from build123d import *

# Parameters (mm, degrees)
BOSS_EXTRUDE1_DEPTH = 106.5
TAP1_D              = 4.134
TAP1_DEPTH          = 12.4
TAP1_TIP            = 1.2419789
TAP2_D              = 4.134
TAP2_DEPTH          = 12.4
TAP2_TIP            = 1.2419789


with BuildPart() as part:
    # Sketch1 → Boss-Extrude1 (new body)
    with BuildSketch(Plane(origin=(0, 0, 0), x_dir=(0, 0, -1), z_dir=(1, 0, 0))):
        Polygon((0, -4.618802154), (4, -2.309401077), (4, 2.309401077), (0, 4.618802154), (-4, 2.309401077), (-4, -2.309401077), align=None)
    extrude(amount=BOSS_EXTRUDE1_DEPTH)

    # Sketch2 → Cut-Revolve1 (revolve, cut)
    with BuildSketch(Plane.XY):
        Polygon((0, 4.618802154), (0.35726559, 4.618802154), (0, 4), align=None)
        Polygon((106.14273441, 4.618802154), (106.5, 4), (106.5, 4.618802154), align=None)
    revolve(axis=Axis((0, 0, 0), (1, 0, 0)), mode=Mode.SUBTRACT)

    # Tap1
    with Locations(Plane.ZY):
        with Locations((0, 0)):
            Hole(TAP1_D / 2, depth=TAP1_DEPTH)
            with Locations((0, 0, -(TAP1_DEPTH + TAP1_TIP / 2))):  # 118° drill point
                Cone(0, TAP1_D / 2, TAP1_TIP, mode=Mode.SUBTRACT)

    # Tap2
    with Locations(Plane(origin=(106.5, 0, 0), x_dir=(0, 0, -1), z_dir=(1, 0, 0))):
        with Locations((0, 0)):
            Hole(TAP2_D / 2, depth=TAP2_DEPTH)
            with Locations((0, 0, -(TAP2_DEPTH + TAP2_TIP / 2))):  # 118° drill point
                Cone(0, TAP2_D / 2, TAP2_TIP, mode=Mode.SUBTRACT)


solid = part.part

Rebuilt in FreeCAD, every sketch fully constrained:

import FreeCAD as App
import Part
import Sketcher
from FreeCAD import Vector
Q = App.Units.Quantity

doc = App.newDocument("Part")
params = doc.addObject("Spreadsheet::Sheet", "Params")
for row, (alias, value) in enumerate([
    ("pad1_length", "106.5 mm"),
    ("groove_angle", "360 deg"),
    ("hole_diameter", "4.134 mm"),
    ("hole_depth", "12.4 mm"),
    ("hole2_diameter", "4.134 mm"),
    ("hole2_depth", "12.4 mm"),
], start=1):
    params.set(f"A{row}", alias)
    params.set(f"B{row}", "=" + value)
    params.setAlias(f"B{row}", alias)

body = doc.addObject("PartDesign::Body", "Body")

# Sketch on YZ plane
sketch1 = body.newObject("Sketcher::SketchObject", "Sketch")
sketch1.AttachmentSupport = (doc.getObject("YZ_Plane"), [""])
sketch1.MapMode = "FlatFace"
sketch1.addGeometry([
    Part.LineSegment(Vector(-4.6, 0, 0), Vector(-2.3, -4, 0)),  # 0
    Part.LineSegment(Vector(-2.3, -4, 0), Vector(2.3, -4, 0)),  # 1
    Part.LineSegment(Vector(2.3, -4, 0), Vector(4.6, 0, 0)),  # 2
    Part.LineSegment(Vector(4.6, 0, 0), Vector(2.3, 4, 0)),  # 3
    Part.LineSegment(Vector(2.3, 4, 0), Vector(-2.3, 4, 0)),  # 4
    Part.LineSegment(Vector(-2.3, 4, 0), Vector(-4.6, 0, 0)),  # 5
], False)
sketch1.addConstraint([
    Sketcher.Constraint("Coincident", 0, 2, 1, 1),
    Sketcher.Constraint("Coincident", 1, 2, 2, 1),
    Sketcher.Constraint("Coincident", 2, 2, 3, 1),
    Sketcher.Constraint("Coincident", 3, 2, 4, 1),
    Sketcher.Constraint("Coincident", 4, 2, 5, 1),
    Sketcher.Constraint("Coincident", 5, 2, 0, 1),
    Sketcher.Constraint("Horizontal", 1),
    Sketcher.Constraint("Horizontal", 4),
    Sketcher.Constraint("Symmetric", 0, 2, 3, 2, -1, 1),
    Sketcher.Constraint("Symmetric", 2, 2, 5, 2, -1, 1),
    Sketcher.Constraint("PointOnObject", 2, 2, -1),
    Sketcher.Constraint("Parallel", 2, 5),
    Sketcher.Constraint("Vertical", 1, 2, 3, 2),
    Sketcher.Constraint("Angle", 0, Q("-60 deg")),
    Sketcher.Constraint("DistanceY", 0, 2, -1, 1, 4.0),
    Sketcher.Constraint("DistanceX", 0, 2, -1, 1, 2.309401),
])
pad1 = body.newObject("PartDesign::Pad", "Pad")
pad1.Profile = sketch1
pad1.setExpression("Length", "Params.pad1_length")

# Sketch on XY plane
sketch2 = body.newObject("Sketcher::SketchObject", "Sketch001")
sketch2.AttachmentSupport = (doc.getObject("XY_Plane"), [""])
sketch2.MapMode = "FlatFace"
sketch2.addGeometry([
    Part.LineSegment(Vector(0.36, 4.62, 0), Vector(0, 4.62, 0)),  # 0
    Part.LineSegment(Vector(0, 4.62, 0), Vector(0, 4, 0)),  # 1
    Part.LineSegment(Vector(0, 4, 0), Vector(0.36, 4.62, 0)),  # 2
    Part.LineSegment(Vector(106.14, 4.62, 0), Vector(106.5, 4, 0)),  # 3
    Part.LineSegment(Vector(106.5, 4, 0), Vector(106.5, 4.62, 0)),  # 4
    Part.LineSegment(Vector(106.5, 4.62, 0), Vector(106.14, 4.62, 0)),  # 5
], False)
sketch2.addConstraint([
    Sketcher.Constraint("Coincident", 0, 2, 1, 1),
    Sketcher.Constraint("Coincident", 1, 2, 2, 1),
    Sketcher.Constraint("Coincident", 2, 2, 0, 1),
    Sketcher.Constraint("Coincident", 3, 2, 4, 1),
    Sketcher.Constraint("Coincident", 4, 2, 5, 1),
    Sketcher.Constraint("Coincident", 5, 2, 3, 1),
    Sketcher.Constraint("Horizontal", 0),
    Sketcher.Constraint("Vertical", 1),
    Sketcher.Constraint("Vertical", 4),
    Sketcher.Constraint("Horizontal", 5),
    Sketcher.Constraint("PointOnObject", 0, 2, -2),
    Sketcher.Constraint("Horizontal", 1, 2, 3, 2),
    Sketcher.Constraint("Horizontal", 2, 2, 4, 2),
    Sketcher.Constraint("Equal", 0, 5),
    Sketcher.Constraint("Angle", 2, Q("60 deg")),
    Sketcher.Constraint("DistanceY", -1, 1, 1, 2, 4.0),
    Sketcher.Constraint("DistanceX", -1, 1, 3, 2, 106.5),
    Sketcher.Constraint("Distance", 2, 0.714531),
])
groove = body.newObject("PartDesign::Groove", "Groove")
groove.Profile = sketch2
groove.ReferenceAxis = (sketch2, ["H_Axis"])
groove.setExpression("Angle", "Params.groove_angle")

# Sketch on YZ plane
sketch3 = body.newObject("Sketcher::SketchObject", "Sketch002")
sketch3.AttachmentSupport = (doc.getObject("YZ_Plane"), [""])
sketch3.MapMode = "FlatFace"
sketch3.addGeometry(Part.Circle(Vector(0, 0, 0), Vector(0, 0, 1), 2.1), False)
sketch3.addConstraint([
    Sketcher.Constraint("Coincident", 0, 3, -1, 1),
    Sketcher.Constraint("Diameter", 0, 4.134),
])
doc.recompute()
hole = body.newObject("PartDesign::Hole", "Hole")
hole.Profile = sketch3
hole.ThreadType = "None"
hole.setExpression("Diameter", "Params.hole_diameter")
hole.DepthType = "Dimension"
hole.setExpression("Depth", "Params.hole_depth")
hole.DrillPoint = "Angled"
hole.DrillPointAngle = 118
hole.Reversed = True

# Sketch on YZ plane
sketch4 = body.newObject("Sketcher::SketchObject", "Sketch003")
sketch4.AttachmentSupport = (doc.getObject("YZ_Plane"), [""])
sketch4.MapMode = "FlatFace"
sketch4.AttachmentOffset = App.Placement(Vector(0, 0, 106.5), App.Rotation())
sketch4.addGeometry(Part.Circle(Vector(0, 0, 0), Vector(0, 0, 1), 2.1), False)
sketch4.addConstraint([
    Sketcher.Constraint("Coincident", 0, 3, -1, 1),
    Sketcher.Constraint("Diameter", 0, 4.134),
])
doc.recompute()
hole2 = body.newObject("PartDesign::Hole", "Hole001")
hole2.Profile = sketch4
hole2.ThreadType = "None"
hole2.setExpression("Diameter", "Params.hole2_diameter")
hole2.DepthType = "Dimension"
hole2.setExpression("Depth", "Params.hole2_depth")
hole2.DrillPoint = "Angled"
hole2.DrillPointAngle = 118

doc.recompute()
